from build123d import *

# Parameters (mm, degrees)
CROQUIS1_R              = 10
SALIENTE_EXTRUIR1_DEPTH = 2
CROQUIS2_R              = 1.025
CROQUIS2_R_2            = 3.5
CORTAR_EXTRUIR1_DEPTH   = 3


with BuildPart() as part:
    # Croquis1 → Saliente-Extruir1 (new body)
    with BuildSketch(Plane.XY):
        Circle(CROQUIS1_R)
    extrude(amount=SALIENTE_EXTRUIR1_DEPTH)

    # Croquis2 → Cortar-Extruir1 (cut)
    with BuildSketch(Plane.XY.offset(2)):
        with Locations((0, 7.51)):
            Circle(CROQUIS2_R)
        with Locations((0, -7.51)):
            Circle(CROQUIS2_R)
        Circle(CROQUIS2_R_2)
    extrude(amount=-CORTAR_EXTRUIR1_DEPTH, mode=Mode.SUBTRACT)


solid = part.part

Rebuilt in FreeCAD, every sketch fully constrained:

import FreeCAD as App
import Part
import Sketcher

V = App.Vector

doc = App.newDocument("Part")
body = doc.addObject("PartDesign::Body", "Body")

# Sketch on XY plane
sketch1 = doc.addObject("Sketcher::SketchObject", "Sketch")
body.addObject(sketch1)
sketch1.AttachmentSupport = (doc.XY_Plane, [""])
sketch1.MapMode = "FlatFace"
sketch1.addGeometry(Part.Circle(V(0, 0, 0), V(0, 0, 1), 10), False)
sketch1.addConstraint(Sketcher.Constraint("Coincident", 0, 3, -1, 1))
sketch1.addConstraint(Sketcher.Constraint("Diameter", 0, 20.0))
pad1 = doc.addObject("PartDesign::Pad", "Pad")
body.addObject(pad1)
pad1.Profile = sketch1
pad1.Length = 2

# Sketch on XY plane
sketch2 = doc.addObject("Sketcher::SketchObject", "Sketch001")
body.addObject(sketch2)
sketch2.AttachmentSupport = (doc.XY_Plane, [""])
sketch2.MapMode = "FlatFace"
sketch2.AttachmentOffset = App.Placement(V(0, 0, 2), App.Rotation())
sketch2.addGeometry(Part.Circle(V(0, 7.51, 0), V(0, 0, 1), 1.025), False)
sketch2.addGeometry(Part.Circle(V(0, -7.51, 0), V(0, 0, 1), 1.025), False)
sketch2.addGeometry(Part.Circle(V(0, 0, 0), V(0, 0, 1), 3.5), False)
sketch2.addConstraint(Sketcher.Constraint("Coincident", 2, 3, -1, 1))
sketch2.addConstraint(Sketcher.Constraint("Equal", 0, 1))
sketch2.addConstraint(Sketcher.Constraint("Symmetric", 0, 3, 1, 3, -1, 1))
sketch2.addConstraint(Sketcher.Constraint("PointOnObject", 0, 3, -2))
sketch2.addConstraint(Sketcher.Constraint("Diameter", 2, 7.0))
sketch2.addConstraint(Sketcher.Constraint("Diameter", 0, 2.05))
sketch2.addConstraint(Sketcher.Constraint("DistanceY", -1, 1, 0, 3, 7.51))
pocket1 = doc.addObject("PartDesign::Pocket", "Pocket")
body.addObject(pocket1)
pocket1.Profile = sketch2
pocket1.Length = 3

doc.recompute()
